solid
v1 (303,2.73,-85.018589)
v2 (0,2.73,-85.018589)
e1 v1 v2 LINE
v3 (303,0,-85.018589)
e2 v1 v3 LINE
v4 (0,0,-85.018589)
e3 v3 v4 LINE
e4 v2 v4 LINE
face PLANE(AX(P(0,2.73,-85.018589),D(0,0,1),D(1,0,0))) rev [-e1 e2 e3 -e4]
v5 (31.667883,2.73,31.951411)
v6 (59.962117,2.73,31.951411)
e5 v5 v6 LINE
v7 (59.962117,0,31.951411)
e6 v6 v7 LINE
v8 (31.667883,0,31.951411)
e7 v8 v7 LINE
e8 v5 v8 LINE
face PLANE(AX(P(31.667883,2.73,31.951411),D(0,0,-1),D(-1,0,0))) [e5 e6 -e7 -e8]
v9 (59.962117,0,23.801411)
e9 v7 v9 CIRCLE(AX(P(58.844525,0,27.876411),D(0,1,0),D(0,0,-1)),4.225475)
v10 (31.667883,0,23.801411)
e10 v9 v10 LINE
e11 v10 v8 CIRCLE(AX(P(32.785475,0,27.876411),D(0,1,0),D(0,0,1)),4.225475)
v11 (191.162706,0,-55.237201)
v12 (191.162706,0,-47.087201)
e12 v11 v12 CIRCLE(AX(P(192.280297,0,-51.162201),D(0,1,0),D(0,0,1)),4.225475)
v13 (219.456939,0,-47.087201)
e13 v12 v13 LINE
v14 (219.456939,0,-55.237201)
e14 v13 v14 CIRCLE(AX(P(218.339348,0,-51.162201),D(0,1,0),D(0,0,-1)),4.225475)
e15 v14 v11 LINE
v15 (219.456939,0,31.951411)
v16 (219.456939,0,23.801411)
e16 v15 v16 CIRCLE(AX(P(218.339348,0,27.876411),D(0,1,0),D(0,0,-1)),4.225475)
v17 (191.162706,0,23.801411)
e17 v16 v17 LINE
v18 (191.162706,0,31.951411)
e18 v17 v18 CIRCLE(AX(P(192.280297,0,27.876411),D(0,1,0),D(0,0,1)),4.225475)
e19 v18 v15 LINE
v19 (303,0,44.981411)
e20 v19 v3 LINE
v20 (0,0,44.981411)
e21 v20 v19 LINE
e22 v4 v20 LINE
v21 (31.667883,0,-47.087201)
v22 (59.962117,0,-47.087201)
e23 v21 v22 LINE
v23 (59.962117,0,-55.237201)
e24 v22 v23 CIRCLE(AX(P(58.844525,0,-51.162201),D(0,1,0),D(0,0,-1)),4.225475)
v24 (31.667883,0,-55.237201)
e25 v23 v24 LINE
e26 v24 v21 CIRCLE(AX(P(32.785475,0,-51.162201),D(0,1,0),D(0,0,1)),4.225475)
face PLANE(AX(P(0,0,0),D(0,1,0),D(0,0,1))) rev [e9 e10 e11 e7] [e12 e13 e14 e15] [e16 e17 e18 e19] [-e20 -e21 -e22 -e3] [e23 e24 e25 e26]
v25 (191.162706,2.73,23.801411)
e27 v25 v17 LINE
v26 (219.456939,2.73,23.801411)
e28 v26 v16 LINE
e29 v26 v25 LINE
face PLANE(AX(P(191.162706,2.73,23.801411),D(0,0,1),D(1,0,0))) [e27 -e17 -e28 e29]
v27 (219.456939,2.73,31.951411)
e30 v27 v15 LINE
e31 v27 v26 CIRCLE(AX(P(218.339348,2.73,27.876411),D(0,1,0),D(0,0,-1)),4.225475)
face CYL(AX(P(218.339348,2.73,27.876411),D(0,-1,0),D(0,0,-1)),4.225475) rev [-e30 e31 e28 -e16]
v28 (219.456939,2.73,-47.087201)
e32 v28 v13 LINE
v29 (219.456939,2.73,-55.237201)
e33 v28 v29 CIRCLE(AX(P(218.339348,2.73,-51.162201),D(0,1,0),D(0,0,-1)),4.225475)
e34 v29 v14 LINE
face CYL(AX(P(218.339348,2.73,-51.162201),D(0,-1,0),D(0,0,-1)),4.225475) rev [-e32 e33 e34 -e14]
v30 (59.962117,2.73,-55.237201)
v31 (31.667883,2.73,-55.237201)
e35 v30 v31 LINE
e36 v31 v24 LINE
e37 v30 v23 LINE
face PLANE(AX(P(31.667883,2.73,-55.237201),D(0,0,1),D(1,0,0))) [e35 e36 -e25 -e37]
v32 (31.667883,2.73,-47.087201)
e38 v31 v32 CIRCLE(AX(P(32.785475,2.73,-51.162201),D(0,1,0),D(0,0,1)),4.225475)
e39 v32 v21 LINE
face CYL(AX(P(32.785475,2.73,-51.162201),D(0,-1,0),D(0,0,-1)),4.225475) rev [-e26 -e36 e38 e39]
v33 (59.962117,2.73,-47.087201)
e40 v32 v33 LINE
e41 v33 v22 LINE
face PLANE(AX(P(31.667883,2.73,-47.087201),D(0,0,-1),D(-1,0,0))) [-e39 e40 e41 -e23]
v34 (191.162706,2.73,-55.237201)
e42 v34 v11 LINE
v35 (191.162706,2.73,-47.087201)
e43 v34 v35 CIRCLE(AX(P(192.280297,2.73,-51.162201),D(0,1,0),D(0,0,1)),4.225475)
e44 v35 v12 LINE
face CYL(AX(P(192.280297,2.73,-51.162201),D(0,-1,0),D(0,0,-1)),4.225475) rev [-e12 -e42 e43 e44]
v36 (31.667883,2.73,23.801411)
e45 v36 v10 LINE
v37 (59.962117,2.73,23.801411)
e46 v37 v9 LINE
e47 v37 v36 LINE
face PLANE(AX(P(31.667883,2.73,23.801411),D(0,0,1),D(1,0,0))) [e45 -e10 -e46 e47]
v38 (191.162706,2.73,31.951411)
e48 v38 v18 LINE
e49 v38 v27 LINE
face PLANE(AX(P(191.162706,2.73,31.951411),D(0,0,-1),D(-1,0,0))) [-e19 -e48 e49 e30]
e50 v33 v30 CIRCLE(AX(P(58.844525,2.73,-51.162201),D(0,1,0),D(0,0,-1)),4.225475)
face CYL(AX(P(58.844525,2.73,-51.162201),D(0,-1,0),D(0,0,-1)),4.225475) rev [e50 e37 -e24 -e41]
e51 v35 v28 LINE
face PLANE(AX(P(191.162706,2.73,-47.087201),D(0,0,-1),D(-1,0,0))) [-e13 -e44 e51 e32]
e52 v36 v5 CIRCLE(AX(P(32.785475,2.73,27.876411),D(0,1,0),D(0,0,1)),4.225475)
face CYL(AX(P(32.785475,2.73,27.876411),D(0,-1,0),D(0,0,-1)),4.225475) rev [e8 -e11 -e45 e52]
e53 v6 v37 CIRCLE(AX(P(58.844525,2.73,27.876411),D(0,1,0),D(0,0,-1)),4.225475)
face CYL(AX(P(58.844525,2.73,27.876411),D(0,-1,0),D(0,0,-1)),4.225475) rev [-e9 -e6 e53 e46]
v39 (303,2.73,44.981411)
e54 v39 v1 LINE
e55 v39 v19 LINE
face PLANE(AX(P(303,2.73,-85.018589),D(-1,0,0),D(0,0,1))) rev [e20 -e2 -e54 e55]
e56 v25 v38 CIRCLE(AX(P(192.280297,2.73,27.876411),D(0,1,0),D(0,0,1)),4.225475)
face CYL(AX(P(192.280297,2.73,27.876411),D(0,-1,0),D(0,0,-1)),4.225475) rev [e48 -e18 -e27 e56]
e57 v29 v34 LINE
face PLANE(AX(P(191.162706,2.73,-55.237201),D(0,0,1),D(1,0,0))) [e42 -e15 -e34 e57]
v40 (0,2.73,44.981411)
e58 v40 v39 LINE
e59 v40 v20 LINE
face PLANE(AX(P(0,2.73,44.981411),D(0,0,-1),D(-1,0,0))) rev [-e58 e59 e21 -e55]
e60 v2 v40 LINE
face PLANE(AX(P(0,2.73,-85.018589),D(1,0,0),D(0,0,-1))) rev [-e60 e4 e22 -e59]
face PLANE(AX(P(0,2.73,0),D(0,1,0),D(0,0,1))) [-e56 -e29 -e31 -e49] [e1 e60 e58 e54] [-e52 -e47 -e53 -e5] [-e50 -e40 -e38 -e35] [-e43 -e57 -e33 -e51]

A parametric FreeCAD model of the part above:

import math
import FreeCAD as App
import Part
import Sketcher

V = App.Vector
Q = App.Units.Quantity


def add_polygon(sketch, points):
    """Adds a closed chain of lines whose ends are joined by coincident constraints."""
    first, n = sketch.GeometryCount, len(points)
    for a, b in zip(points, points[1:] + points[:1]):
        sketch.addGeometry(Part.LineSegment(App.Vector(*a, 0), App.Vector(*b, 0)), False)
    for i in range(n):
        sketch.addConstraint(Sketcher.Constraint("Coincident", first + i, 2, first + (i + 1) % n, 1))

doc = App.newDocument("Part")
body = doc.addObject("PartDesign::Body", "Body")

# Sketch on XZ plane
sketch1 = body.newObject("Sketcher::SketchObject", "Sketch")
sketch1.AttachmentSupport = (doc.getObject("XZ_Plane"), [""])
sketch1.MapMode = "FlatFace"
add_polygon(sketch1, [(0, -85), (0, 45), (303, 45), (303, -85)])  # lines 0-3
sketch1.addGeometry(Part.LineSegment(V(60, 32, 0), V(31.7, 32, 0)), False)  # 4
sketch1.addGeometry(Part.ArcOfCircle(Part.Circle(V(32.8, 27.9, 0), V(0, 0, 1), 4.2), math.radians(105), math.radians(255)), False)  # 5
sketch1.addGeometry(Part.LineSegment(V(31.7, 23.8, 0), V(60, 23.8, 0)), False)  # 6
sketch1.addGeometry(Part.ArcOfCircle(Part.Circle(V(58.8, 27.9, 0), V(0, 0, 1), 4.2), math.radians(-75), math.radians(75)), False)  # 7
sketch1.addGeometry(Part.LineSegment(V(219.5, 32, 0), V(191.2, 32, 0)), False)  # 8
sketch1.addGeometry(Part.ArcOfCircle(Part.Circle(V(192.3, 27.9, 0), V(0, 0, 1), 4.2), math.radians(105), math.radians(255)), False)  # 9
sketch1.addGeometry(Part.LineSegment(V(191.2, 23.8, 0), V(219.5, 23.8, 0)), False)  # 10
sketch1.addGeometry(Part.ArcOfCircle(Part.Circle(V(218.3, 27.9, 0), V(0, 0, 1), 4.2), math.radians(-75), math.radians(75)), False)  # 11
sketch1.addGeometry(Part.LineSegment(V(60, -47.1, 0), V(31.7, -47.1, 0)), False)  # 12
sketch1.addGeometry(Part.ArcOfCircle(Part.Circle(V(32.8, -51.2, 0), V(0, 0, 1), 4.2), math.radians(105), math.radians(255)), False)  # 13
sketch1.addGeometry(Part.LineSegment(V(31.7, -55.2, 0), V(60, -55.2, 0)), False)  # 14
sketch1.addGeometry(Part.ArcOfCircle(Part.Circle(V(58.8, -51.2, 0), V(0, 0, 1), 4.2), math.radians(-75), math.radians(75)), False)  # 15
sketch1.addGeometry(Part.ArcOfCircle(Part.Circle(V(192.3, -51.2, 0), V(0, 0, 1), 4.2), math.radians(105), math.radians(255)), False)  # 16
sketch1.addGeometry(Part.LineSegment(V(191.2, -55.2, 0), V(219.5, -55.2, 0)), False)  # 17
sketch1.addGeometry(Part.ArcOfCircle(Part.Circle(V(218.3, -51.2, 0), V(0, 0, 1), 4.2), math.radians(-75), math.radians(75)), False)  # 18
sketch1.addGeometry(Part.LineSegment(V(219.5, -47.1, 0), V(191.2, -47.1, 0)), False)  # 19
sketch1.addConstraint(Sketcher.Constraint("Coincident", 4, 2, 5, 1))
sketch1.addConstraint(Sketcher.Constraint("Coincident", 5, 2, 6, 1))
sketch1.addConstraint(Sketcher.Constraint("Coincident", 6, 2, 7, 1))
sketch1.addConstraint(Sketcher.Constraint("Coincident", 7, 2, 4, 1))
sketch1.addConstraint(Sketcher.Constraint("Coincident", 8, 2, 9, 1))
sketch1.addConstraint(Sketcher.Constraint("Coincident", 9, 2, 10, 1))
sketch1.addConstraint(Sketcher.Constraint("Coincident", 10, 2, 11, 1))
sketch1.addConstraint(Sketcher.Constraint("Coincident", 11, 2, 8, 1))
sketch1.addConstraint(Sketcher.Constraint("Coincident", 12, 2, 13, 1))
sketch1.addConstraint(Sketcher.Constraint("Coincident", 13, 2, 14, 1))
sketch1.addConstraint(Sketcher.Constraint("Coincident", 14, 2, 15, 1))
sketch1.addConstraint(Sketcher.Constraint("Coincident", 15, 2, 12, 1))
sketch1.addConstraint(Sketcher.Constraint("Coincident", 16, 2, 17, 1))
sketch1.addConstraint(Sketcher.Constraint("Coincident", 17, 2, 18, 1))
sketch1.addConstraint(Sketcher.Constraint("Coincident", 18, 2, 19, 1))
sketch1.addConstraint(Sketcher.Constraint("Coincident", 19, 2, 16, 1))
sketch1.addConstraint(Sketcher.Constraint("Vertical", 0))
sketch1.addConstraint(Sketcher.Constraint("Horizontal", 1))
sketch1.addConstraint(Sketcher.Constraint("Vertical", 2))
sketch1.addConstraint(Sketcher.Constraint("Horizontal", 3))
sketch1.addConstraint(Sketcher.Constraint("Horizontal", 4))
sketch1.addConstraint(Sketcher.Constraint("Horizontal", 6))
sketch1.addConstraint(Sketcher.Constraint("Horizontal", 8))
sketch1.addConstraint(Sketcher.Constraint("Horizontal", 10))
sketch1.addConstraint(Sketcher.Constraint("Horizontal", 12))
sketch1.addConstraint(Sketcher.Constraint("Horizontal", 14))
sketch1.addConstraint(Sketcher.Constraint("Horizontal", 17))
sketch1.addConstraint(Sketcher.Constraint("Horizontal", 19))
sketch1.addConstraint(Sketcher.Constraint("Equal", 5, 7))
sketch1.addConstraint(Sketcher.Constraint("Equal", 7, 9))
sketch1.addConstraint(Sketcher.Constraint("Equal", 9, 11))
sketch1.addConstraint(Sketcher.Constraint("Equal", 11, 13))
sketch1.addConstraint(Sketcher.Constraint("Equal", 13, 15))
sketch1.addConstraint(Sketcher.Constraint("Equal", 15, 16))
sketch1.addConstraint(Sketcher.Constraint("Equal", 16, 18))
sketch1.addConstraint(Sketcher.Constraint("PointOnObject", 0, 2, -2))
sketch1.addConstraint(Sketcher.Constraint("Horizontal", 5, 3, 7, 3))
sketch1.addConstraint(Sketcher.Constraint("Horizontal", 7, 3, 9, 3))
sketch1.addConstraint(Sketcher.Constraint("Horizontal", 9, 3, 11, 3))
sketch1.addConstraint(Sketcher.Constraint("Horizontal", 13, 3, 15, 3))
sketch1.addConstraint(Sketcher.Constraint("Horizontal", 15, 3, 16, 3))
sketch1.addConstraint(Sketcher.Constraint("Horizontal", 16, 3, 18, 3))
sketch1.addConstraint(Sketcher.Constraint("Horizontal", 7, 2, 8, 2))
sketch1.addConstraint(Sketcher.Constraint("Horizontal", 6, 2, 9, 2))
sketch1.addConstraint(Sketcher.Constraint("Horizontal", 14, 2, 16, 2))
sketch1.addConstraint(Sketcher.Constraint("Horizontal", 15, 2, 18, 2))
sketch1.addConstraint(Sketcher.Constraint("Vertical", 5, 3, 13, 3))
sketch1.addConstraint(Sketcher.Constraint("Vertical", 7, 3, 15, 3))
sketch1.addConstraint(Sketcher.Constraint("Vertical", 9, 3, 16, 3))
sketch1.addConstraint(Sketcher.Constraint("Vertical", 11, 3, 18, 3))
sketch1.addConstraint(Sketcher.Constraint("Vertical", 4, 2, 5, 2))
sketch1.addConstraint(Sketcher.Constraint("Vertical", 5, 2, 12, 2))
sketch1.addConstraint(Sketcher.Constraint("Vertical", 12, 2, 13, 2))
sketch1.addConstraint(Sketcher.Constraint("Equal", 6, 8))
sketch1.addConstraint(Sketcher.Constraint("DistanceX", 1, 1, 1, 2, Q("303 mm")))
sketch1.addConstraint(Sketcher.Constraint("DistanceY", 0, 1, 0, 2, Q("130 mm")))
sketch1.addConstraint(Sketcher.Constraint("DistanceY", 4, 2, 0, 2, Q("13.03 mm")))
sketch1.addConstraint(Sketcher.Constraint("DistanceY", 5, 2, 4, 2, Q("8.15 mm")))
sketch1.addConstraint(Sketcher.Constraint("Radius", 5, Q("4.225475 mm")))
sketch1.addConstraint(Sketcher.Constraint("DistanceY", 13, 3, -1, 1, Q("51.162201 mm")))
sketch1.addConstraint(Sketcher.Constraint("DistanceX", 4, 2, 4, 1, Q("28.294234 mm")))
sketch1.addConstraint(Sketcher.Constraint("DistanceY", -1, 1, 5, 3, Q("27.876411 mm")))
sketch1.addConstraint(Sketcher.Constraint("DistanceX", -1, 1, 10, 2, Q("219.456939 mm")))
sketch1.addConstraint(Sketcher.Constraint("DistanceX", 7, 3, 9, 3, Q("133.435772 mm")))
pad1 = body.newObject("PartDesign::Pad", "Pad")
pad1.Profile = sketch1
pad1.Length = 2.73
pad1.Reversed = True

doc.recompute()
